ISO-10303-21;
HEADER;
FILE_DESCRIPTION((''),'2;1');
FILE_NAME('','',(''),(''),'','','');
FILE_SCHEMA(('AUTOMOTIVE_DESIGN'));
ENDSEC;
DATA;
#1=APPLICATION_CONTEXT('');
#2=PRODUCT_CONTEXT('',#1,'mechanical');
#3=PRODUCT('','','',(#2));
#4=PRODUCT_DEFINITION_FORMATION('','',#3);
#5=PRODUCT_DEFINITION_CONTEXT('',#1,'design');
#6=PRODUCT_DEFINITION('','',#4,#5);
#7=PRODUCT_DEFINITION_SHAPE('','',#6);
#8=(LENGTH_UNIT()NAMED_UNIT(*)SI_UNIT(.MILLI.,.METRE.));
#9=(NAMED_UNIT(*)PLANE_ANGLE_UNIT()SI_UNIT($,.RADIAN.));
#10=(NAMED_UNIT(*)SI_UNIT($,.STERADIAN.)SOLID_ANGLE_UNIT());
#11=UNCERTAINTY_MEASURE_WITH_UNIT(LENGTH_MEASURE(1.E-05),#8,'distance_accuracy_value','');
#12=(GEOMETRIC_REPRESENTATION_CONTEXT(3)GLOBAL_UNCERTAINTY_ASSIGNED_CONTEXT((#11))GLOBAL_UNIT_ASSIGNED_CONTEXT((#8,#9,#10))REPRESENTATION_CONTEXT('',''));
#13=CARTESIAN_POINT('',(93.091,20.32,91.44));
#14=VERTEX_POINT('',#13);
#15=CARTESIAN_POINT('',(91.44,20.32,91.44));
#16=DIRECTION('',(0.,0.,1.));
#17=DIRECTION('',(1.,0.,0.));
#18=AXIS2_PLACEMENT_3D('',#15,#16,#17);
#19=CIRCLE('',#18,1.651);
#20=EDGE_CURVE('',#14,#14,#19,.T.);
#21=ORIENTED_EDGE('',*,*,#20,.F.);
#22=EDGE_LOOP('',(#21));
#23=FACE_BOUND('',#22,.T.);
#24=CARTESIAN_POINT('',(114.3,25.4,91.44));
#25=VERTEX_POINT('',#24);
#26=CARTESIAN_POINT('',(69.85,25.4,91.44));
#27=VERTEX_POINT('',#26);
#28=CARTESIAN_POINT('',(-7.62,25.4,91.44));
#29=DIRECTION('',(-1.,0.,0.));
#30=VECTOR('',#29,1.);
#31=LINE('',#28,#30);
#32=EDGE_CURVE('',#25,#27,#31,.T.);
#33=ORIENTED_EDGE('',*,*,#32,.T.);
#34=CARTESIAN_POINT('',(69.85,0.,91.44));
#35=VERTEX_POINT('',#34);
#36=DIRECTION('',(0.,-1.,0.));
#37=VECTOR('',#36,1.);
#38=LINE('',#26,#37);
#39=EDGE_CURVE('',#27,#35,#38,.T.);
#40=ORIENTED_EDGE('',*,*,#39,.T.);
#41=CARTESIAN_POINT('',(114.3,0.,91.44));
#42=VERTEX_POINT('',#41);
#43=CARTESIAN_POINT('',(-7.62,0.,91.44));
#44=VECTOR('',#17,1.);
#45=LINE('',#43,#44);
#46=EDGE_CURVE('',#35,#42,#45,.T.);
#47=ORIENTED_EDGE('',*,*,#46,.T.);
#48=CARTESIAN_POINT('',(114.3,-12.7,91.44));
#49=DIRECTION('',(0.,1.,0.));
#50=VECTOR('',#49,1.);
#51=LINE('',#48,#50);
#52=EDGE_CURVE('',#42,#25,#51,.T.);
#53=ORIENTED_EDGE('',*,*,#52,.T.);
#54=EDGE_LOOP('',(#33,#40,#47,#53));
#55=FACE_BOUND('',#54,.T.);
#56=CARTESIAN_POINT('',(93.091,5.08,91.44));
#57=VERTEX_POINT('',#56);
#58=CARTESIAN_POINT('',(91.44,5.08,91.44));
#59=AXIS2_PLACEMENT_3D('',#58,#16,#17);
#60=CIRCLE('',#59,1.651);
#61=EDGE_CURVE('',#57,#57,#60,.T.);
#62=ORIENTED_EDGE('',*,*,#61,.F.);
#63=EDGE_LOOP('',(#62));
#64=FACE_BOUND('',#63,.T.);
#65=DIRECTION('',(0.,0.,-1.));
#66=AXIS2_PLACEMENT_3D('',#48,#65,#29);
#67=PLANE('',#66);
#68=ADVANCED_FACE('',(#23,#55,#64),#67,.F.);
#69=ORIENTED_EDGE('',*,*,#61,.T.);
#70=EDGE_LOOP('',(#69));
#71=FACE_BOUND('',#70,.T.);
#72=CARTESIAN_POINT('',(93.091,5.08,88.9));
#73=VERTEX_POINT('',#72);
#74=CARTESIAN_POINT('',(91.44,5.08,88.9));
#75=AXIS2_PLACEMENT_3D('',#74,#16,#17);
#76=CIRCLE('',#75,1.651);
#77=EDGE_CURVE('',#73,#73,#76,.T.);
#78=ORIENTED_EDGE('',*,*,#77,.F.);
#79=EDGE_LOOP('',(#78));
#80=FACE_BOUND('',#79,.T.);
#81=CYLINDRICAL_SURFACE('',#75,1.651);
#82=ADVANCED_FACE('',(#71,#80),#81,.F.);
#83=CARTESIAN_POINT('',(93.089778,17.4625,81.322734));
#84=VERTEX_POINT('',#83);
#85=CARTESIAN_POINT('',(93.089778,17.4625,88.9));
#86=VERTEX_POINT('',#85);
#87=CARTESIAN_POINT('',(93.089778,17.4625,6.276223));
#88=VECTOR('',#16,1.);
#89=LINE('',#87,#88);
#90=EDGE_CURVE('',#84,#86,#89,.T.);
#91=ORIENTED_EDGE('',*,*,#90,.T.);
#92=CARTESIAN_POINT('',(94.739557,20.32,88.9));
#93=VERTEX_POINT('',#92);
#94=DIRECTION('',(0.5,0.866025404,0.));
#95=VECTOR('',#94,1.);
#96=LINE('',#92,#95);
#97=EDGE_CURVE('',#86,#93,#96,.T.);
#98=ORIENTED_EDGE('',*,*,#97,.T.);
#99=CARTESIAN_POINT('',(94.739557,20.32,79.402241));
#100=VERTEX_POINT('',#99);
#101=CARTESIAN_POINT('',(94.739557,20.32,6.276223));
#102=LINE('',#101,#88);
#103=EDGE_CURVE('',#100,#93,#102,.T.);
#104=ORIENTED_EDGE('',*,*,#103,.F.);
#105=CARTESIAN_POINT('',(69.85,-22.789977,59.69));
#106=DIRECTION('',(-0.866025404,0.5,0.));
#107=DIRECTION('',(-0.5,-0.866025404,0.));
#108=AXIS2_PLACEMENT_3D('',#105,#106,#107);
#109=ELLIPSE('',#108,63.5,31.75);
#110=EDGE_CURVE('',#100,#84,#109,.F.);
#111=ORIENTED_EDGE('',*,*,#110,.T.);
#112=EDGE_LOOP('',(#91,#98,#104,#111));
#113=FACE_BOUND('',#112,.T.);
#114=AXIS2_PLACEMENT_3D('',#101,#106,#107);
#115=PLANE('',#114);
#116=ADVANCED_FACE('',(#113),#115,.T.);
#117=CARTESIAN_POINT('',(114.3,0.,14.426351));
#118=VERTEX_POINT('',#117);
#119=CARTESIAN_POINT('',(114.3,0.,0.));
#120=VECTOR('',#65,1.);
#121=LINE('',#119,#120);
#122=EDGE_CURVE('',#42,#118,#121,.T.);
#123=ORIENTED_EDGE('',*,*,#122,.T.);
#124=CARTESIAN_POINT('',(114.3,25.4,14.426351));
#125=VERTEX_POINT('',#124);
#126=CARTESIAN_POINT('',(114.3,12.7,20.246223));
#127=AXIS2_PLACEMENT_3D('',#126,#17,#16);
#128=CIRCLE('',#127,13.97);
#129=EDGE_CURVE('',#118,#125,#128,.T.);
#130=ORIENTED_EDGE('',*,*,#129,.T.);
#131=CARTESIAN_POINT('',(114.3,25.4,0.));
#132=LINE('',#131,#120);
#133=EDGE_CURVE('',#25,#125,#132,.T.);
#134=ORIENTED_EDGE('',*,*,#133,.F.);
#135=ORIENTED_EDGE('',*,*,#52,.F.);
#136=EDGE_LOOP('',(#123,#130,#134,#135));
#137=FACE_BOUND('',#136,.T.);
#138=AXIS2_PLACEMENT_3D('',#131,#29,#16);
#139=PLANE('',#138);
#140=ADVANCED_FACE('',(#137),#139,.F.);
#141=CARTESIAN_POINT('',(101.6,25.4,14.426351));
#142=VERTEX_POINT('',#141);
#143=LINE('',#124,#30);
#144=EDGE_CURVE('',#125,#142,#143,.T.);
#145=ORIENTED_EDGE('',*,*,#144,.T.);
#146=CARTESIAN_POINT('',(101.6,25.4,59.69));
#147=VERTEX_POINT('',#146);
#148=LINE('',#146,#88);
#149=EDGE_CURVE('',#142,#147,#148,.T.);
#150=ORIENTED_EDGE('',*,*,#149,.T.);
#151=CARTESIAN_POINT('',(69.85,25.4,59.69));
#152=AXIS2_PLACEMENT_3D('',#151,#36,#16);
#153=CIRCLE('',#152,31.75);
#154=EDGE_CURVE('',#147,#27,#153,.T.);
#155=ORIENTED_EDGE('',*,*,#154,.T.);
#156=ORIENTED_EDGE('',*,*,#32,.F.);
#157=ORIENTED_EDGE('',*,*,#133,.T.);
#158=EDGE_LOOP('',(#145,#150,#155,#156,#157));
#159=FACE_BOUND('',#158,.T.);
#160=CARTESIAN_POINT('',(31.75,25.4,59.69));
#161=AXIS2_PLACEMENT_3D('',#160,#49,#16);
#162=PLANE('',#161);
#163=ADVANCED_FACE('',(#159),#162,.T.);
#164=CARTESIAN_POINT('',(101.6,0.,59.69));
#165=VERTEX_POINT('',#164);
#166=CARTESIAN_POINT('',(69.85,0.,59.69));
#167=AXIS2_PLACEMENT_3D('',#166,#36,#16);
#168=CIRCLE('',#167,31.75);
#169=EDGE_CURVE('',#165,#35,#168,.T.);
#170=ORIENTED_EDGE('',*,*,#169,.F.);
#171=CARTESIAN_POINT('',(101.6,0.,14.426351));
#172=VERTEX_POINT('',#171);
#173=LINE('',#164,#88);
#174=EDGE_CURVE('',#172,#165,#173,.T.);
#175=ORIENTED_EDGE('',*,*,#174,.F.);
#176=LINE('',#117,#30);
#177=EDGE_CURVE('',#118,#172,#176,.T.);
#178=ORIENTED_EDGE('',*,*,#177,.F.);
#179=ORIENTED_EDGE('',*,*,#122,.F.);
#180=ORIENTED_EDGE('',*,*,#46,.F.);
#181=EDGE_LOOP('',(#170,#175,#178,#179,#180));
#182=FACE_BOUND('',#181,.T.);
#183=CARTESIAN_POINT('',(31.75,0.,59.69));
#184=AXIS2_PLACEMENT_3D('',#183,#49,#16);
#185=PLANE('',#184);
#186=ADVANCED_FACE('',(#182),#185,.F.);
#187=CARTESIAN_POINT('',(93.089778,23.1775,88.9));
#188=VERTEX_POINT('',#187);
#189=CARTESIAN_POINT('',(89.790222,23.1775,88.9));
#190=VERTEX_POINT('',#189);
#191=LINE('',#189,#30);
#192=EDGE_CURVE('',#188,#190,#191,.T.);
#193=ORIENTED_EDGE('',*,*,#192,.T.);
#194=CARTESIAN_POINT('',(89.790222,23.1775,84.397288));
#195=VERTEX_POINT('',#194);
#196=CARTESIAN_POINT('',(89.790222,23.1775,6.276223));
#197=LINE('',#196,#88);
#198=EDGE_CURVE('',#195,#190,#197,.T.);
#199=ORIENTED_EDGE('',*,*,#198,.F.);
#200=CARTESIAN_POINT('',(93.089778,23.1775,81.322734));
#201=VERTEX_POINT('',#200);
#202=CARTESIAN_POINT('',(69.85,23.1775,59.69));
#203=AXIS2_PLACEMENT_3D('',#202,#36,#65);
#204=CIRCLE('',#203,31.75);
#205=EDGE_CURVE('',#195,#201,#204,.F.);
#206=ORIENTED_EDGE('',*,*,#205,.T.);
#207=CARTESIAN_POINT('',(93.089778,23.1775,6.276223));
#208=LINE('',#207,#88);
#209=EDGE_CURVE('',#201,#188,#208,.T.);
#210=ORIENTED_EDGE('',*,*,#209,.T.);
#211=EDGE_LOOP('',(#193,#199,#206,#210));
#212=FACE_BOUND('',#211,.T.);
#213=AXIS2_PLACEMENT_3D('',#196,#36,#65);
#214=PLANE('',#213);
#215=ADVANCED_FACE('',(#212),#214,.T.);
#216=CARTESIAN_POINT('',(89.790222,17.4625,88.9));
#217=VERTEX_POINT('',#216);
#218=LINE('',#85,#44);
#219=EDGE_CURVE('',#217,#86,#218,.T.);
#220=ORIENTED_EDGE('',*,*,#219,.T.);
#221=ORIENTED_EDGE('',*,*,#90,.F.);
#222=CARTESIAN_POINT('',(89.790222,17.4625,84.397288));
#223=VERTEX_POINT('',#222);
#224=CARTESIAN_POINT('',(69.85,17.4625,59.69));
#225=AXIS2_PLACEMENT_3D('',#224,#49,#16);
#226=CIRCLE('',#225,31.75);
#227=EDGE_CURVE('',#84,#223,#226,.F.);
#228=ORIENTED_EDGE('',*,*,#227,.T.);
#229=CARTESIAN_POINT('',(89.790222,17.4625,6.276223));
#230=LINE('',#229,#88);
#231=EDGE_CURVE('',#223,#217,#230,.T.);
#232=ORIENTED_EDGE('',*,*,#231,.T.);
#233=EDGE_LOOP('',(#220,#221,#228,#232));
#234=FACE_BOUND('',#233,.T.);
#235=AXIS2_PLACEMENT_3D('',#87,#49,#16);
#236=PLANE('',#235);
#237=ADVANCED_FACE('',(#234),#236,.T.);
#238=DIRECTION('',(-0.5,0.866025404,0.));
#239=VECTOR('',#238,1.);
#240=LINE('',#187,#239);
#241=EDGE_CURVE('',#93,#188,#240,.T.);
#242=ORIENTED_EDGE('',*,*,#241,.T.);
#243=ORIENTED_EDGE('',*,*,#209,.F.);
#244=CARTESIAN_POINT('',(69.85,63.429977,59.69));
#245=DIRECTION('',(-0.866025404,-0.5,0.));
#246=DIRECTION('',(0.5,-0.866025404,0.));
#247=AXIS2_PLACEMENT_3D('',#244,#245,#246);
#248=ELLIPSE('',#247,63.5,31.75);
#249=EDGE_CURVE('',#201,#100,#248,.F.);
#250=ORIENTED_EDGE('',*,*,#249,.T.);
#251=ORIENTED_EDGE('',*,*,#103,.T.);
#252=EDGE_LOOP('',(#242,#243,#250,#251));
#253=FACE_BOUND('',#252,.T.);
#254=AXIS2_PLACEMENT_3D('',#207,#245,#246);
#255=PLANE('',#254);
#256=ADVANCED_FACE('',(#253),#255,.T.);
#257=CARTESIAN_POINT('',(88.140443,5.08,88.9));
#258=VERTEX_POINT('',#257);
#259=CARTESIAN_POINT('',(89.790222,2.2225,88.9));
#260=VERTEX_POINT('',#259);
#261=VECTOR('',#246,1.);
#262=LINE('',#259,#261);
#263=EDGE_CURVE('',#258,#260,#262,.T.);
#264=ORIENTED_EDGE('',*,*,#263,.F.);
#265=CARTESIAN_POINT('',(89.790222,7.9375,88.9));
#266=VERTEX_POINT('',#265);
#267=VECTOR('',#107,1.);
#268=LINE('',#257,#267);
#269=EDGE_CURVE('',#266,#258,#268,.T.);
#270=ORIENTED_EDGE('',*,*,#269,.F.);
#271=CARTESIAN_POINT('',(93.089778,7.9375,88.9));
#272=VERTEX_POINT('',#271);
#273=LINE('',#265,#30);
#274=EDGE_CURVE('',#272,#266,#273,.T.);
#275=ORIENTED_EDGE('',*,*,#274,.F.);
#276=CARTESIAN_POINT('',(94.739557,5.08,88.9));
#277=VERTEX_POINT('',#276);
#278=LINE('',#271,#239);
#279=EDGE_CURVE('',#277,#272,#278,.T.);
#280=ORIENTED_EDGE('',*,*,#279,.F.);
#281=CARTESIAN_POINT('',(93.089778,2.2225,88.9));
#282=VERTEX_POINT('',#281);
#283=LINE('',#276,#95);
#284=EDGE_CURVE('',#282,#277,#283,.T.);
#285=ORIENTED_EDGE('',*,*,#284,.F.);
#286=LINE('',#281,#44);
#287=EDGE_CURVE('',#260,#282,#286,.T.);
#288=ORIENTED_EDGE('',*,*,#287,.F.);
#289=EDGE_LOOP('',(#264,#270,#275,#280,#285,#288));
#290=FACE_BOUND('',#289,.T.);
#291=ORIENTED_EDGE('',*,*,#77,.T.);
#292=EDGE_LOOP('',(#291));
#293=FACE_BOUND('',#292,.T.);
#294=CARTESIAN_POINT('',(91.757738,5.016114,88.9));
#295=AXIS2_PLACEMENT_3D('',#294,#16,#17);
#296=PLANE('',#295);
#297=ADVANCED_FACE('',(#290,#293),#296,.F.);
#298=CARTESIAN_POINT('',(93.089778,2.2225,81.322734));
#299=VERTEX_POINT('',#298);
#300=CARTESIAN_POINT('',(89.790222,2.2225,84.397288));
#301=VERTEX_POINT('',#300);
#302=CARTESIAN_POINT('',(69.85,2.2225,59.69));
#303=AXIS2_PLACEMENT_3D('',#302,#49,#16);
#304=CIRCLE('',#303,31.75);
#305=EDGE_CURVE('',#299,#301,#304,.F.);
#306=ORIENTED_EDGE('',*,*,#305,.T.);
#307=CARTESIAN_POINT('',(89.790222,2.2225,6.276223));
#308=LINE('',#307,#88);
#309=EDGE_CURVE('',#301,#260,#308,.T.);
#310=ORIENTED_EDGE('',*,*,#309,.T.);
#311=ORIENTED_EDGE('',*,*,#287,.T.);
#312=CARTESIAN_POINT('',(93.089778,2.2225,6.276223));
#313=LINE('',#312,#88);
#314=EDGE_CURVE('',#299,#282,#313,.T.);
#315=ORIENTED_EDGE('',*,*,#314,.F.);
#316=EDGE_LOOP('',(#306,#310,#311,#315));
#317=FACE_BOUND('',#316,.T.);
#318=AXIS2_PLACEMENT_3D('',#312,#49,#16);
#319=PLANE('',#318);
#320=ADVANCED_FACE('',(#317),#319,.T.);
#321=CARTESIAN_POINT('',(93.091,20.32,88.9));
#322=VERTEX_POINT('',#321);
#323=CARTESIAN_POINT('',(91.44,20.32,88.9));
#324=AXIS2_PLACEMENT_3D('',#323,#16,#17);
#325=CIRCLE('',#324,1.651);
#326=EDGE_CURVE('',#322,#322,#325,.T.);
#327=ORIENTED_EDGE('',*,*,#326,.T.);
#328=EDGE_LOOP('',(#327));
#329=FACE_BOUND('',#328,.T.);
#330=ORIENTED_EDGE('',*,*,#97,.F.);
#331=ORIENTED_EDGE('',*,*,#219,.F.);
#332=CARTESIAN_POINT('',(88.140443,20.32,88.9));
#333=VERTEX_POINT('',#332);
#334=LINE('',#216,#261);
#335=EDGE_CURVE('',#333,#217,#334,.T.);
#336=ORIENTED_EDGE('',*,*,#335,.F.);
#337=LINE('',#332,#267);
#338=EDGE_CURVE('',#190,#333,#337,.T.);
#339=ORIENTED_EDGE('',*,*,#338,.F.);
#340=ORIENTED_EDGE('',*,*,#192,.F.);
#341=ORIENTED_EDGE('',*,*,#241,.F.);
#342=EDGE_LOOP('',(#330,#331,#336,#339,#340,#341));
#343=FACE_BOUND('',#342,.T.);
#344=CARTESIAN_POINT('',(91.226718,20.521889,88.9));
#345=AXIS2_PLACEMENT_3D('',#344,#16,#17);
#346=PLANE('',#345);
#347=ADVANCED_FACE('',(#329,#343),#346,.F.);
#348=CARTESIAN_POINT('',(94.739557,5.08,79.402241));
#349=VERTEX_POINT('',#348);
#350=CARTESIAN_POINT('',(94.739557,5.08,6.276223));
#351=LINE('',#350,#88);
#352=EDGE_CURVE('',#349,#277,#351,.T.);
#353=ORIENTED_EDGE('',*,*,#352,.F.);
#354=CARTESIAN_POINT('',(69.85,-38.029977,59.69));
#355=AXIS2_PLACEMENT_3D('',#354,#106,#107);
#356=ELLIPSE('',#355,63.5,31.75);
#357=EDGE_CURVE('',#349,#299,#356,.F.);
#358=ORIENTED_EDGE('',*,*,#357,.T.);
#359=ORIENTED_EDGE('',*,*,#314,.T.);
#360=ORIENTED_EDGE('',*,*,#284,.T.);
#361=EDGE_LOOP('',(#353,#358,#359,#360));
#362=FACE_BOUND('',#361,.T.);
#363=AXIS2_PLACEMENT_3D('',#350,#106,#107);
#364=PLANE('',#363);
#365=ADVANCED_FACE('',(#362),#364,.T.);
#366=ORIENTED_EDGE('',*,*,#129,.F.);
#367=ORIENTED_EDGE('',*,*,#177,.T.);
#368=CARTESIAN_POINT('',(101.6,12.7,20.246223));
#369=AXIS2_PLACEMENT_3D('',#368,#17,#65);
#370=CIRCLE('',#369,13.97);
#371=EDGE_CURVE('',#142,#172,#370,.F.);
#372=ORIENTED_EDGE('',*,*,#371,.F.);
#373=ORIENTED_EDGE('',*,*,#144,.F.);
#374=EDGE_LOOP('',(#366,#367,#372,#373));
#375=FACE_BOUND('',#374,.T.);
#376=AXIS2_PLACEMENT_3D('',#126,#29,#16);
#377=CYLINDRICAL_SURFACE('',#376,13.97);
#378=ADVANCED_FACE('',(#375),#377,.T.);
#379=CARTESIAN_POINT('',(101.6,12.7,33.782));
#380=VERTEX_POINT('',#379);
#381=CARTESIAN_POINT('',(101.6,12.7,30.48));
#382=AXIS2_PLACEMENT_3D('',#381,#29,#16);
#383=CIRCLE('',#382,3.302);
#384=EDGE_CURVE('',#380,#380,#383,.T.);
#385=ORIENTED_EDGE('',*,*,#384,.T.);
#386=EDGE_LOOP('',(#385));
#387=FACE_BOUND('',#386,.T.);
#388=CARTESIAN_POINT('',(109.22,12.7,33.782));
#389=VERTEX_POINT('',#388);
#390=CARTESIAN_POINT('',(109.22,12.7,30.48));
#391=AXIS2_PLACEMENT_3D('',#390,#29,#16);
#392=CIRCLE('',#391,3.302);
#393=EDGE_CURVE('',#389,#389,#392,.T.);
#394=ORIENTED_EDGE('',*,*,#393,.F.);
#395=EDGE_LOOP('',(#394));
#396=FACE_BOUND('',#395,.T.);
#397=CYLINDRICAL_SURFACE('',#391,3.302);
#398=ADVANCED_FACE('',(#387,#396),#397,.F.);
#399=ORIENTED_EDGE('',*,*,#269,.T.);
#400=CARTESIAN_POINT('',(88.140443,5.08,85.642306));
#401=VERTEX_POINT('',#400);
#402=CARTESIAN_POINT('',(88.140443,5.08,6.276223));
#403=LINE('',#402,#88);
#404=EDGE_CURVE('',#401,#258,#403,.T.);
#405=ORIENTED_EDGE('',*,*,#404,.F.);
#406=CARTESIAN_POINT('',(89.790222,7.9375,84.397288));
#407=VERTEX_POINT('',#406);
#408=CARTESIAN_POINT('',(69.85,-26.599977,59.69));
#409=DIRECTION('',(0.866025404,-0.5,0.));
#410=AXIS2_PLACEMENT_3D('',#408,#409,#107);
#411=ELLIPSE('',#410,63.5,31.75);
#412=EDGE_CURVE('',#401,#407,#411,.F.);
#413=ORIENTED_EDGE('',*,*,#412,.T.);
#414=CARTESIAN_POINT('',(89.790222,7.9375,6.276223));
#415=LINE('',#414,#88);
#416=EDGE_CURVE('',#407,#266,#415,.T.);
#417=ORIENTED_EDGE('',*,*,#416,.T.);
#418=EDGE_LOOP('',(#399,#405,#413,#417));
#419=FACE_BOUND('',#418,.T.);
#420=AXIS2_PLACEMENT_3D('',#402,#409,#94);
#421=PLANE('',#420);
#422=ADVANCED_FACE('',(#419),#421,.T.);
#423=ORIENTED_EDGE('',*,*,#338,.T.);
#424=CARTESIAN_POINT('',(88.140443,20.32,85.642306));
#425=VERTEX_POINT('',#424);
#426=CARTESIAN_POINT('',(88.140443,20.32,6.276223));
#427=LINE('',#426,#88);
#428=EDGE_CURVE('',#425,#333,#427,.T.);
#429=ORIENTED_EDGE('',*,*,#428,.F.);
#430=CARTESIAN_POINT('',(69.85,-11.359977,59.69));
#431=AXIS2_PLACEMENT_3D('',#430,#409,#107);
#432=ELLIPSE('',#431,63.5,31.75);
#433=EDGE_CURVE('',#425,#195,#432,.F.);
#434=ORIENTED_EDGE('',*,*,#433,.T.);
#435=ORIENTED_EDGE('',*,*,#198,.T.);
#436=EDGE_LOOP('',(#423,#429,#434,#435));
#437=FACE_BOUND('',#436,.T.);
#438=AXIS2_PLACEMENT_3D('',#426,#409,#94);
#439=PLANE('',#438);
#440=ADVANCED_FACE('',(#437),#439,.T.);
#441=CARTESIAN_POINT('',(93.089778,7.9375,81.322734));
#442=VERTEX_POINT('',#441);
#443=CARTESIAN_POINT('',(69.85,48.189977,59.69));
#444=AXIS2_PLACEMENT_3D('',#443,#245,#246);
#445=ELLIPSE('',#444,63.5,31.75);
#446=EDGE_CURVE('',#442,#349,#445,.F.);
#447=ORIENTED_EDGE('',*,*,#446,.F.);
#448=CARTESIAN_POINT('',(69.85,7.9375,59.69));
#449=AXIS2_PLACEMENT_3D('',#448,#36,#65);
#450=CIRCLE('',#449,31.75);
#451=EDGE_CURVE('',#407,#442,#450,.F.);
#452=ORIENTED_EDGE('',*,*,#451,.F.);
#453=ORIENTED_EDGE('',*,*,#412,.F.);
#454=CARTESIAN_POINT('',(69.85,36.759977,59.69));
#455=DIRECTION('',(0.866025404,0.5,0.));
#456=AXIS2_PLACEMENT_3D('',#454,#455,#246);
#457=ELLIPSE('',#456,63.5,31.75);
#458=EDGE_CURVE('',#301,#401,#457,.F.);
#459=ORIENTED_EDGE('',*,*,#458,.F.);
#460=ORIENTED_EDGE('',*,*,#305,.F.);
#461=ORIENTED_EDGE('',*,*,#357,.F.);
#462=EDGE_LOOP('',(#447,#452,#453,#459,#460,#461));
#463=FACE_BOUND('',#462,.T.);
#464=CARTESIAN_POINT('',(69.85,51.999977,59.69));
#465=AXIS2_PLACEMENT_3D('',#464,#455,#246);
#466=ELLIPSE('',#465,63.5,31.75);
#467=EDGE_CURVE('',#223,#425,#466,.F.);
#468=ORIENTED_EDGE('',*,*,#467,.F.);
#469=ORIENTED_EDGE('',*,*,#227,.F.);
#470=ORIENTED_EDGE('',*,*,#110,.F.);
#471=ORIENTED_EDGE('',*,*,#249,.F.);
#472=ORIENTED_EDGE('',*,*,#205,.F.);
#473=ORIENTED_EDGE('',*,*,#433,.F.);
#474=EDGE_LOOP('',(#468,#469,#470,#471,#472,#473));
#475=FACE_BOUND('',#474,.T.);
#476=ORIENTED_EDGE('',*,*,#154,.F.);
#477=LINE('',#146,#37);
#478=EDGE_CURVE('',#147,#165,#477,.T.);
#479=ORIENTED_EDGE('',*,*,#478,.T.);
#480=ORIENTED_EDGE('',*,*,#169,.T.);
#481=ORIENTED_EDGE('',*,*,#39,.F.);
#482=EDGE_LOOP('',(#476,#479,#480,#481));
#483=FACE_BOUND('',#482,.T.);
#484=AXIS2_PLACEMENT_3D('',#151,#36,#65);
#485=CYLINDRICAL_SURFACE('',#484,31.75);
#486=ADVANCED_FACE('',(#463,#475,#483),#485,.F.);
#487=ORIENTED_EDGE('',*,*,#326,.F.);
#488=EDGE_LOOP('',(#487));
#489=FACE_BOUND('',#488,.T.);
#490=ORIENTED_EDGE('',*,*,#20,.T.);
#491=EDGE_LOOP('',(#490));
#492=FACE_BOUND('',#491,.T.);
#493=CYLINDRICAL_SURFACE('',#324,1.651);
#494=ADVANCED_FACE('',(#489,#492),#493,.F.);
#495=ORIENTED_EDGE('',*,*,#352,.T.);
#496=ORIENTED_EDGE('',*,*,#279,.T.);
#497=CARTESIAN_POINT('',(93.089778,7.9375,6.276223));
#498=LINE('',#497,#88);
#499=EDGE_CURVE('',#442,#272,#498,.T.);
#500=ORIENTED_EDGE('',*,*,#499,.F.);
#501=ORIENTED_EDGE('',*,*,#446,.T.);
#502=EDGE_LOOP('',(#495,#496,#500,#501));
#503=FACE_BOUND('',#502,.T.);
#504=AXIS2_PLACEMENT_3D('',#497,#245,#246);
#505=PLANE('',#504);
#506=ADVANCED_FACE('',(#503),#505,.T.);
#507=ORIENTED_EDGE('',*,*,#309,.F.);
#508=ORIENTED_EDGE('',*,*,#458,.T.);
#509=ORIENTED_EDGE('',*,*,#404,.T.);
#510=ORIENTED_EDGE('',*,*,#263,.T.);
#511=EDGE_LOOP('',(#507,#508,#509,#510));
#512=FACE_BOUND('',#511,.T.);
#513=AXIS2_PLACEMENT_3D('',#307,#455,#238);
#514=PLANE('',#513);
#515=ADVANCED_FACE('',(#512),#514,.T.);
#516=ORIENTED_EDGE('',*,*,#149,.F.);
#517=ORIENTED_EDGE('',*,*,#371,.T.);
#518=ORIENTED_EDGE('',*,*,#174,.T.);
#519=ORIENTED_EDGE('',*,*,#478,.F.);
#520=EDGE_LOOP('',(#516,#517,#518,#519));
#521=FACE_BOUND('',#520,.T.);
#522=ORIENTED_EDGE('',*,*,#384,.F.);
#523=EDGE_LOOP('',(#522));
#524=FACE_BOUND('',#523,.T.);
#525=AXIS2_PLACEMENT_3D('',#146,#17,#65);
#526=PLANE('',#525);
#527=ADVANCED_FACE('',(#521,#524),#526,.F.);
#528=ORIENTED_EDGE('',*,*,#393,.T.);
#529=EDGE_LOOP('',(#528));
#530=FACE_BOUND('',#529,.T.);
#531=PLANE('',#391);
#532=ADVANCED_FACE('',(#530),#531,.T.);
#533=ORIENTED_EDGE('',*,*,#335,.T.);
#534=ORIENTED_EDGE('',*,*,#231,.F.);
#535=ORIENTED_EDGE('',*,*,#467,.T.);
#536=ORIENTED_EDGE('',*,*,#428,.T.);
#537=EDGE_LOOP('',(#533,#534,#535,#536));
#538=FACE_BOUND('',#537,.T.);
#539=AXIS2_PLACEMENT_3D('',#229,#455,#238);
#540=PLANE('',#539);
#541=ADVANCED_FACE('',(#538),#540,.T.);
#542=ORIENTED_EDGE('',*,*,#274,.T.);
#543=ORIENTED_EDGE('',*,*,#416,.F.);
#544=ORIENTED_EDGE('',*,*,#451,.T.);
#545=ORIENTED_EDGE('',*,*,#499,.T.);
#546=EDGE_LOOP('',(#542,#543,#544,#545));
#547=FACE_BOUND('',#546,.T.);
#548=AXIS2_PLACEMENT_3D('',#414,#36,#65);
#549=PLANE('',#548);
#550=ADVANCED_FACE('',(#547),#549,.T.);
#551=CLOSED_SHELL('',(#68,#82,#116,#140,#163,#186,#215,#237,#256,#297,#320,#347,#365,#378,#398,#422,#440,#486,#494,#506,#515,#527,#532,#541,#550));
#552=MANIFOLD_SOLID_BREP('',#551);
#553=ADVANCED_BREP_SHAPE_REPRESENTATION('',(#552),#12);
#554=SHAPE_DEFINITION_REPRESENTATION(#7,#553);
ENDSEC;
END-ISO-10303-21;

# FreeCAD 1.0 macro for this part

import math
import FreeCAD as App
import Part
import Sketcher
Q = App.Units.Quantity

doc = App.newDocument("Part")
body = doc.addObject("PartDesign::Body", "Body")

sketch1 = body.newObject("Sketcher::SketchObject", "Sketch")
sketch1.AttachmentSupport = (doc.getObject("XZ_Plane"), [""])
sketch1.MapMode = "FlatFace"
sketch1.addGeometry(Part.LineSegment(App.Vector(0, 59.69, 0), App.Vector(0, 0, 0)), False)
sketch1.addGeometry(Part.LineSegment(App.Vector(0, 0, 0), App.Vector(-7.62, 0, 0)), False)
sketch1.addGeometry(Part.LineSegment(App.Vector(-7.62, 0, 0), App.Vector(-7.62, 99.06, 0)), False)
sketch1.addGeometry(Part.LineSegment(App.Vector(-7.62, 99.06, 0), App.Vector(114.3, 99.06, 0)), False)
sketch1.addGeometry(Part.LineSegment(App.Vector(114.3, 99.06, 0), App.Vector(114.3, 0, 0)), False)
sketch1.addGeometry(Part.LineSegment(App.Vector(114.3, 0, 0), App.Vector(101.6, 0, 0)), False)
sketch1.addGeometry(Part.LineSegment(App.Vector(101.6, 0, 0), App.Vector(101.6, 59.69, 0)), False)
sketch1.addGeometry(Part.ArcOfCircle(Part.Circle(App.Vector(69.85, 59.69, 0), App.Vector(0, 0, 1), 31.75), math.radians(0), math.radians(90)), False)
sketch1.addGeometry(Part.LineSegment(App.Vector(69.85, 91.44, 0), App.Vector(31.75, 91.44, 0)), False)
sketch1.addGeometry(Part.ArcOfCircle(Part.Circle(App.Vector(31.75, 59.69, 0), App.Vector(0, 0, 1), 31.75), math.radians(90), math.radians(180)), False)
sketch1.addConstraint(Sketcher.Constraint("Coincident", 0, 2, 1, 1))
sketch1.addConstraint(Sketcher.Constraint("Coincident", 1, 2, 2, 1))
sketch1.addConstraint(Sketcher.Constraint("Coincident", 2, 2, 3, 1))
sketch1.addConstraint(Sketcher.Constraint("Coincident", 3, 2, 4, 1))
sketch1.addConstraint(Sketcher.Constraint("Coincident", 4, 2, 5, 1))
sketch1.addConstraint(Sketcher.Constraint("Coincident", 5, 2, 6, 1))
sketch1.addConstraint(Sketcher.Constraint("Tangent", 6, 2, 7, 1))
sketch1.addConstraint(Sketcher.Constraint("Tangent", 7, 2, 8, 1))
sketch1.addConstraint(Sketcher.Constraint("Tangent", 8, 2, 9, 1))
sketch1.addConstraint(Sketcher.Constraint("Tangent", 9, 2, 0, 1))
sketch1.addConstraint(Sketcher.Constraint("Vertical", 0))
sketch1.addConstraint(Sketcher.Constraint("Horizontal", 1))
sketch1.addConstraint(Sketcher.Constraint("Vertical", 2))
sketch1.addConstraint(Sketcher.Constraint("Horizontal", 3))
sketch1.addConstraint(Sketcher.Constraint("Vertical", 4))
sketch1.addConstraint(Sketcher.Constraint("Horizontal", 5))
sketch1.addConstraint(Sketcher.Constraint("Vertical", 6))
sketch1.addConstraint(Sketcher.Constraint("Horizontal", 8))
sketch1.addConstraint(Sketcher.Constraint("Coincident", 0, 2, -1, 1))
sketch1.addConstraint(Sketcher.Constraint("Equal", 7, 9))
sketch1.addConstraint(Sketcher.Constraint("PointOnObject", 4, 2, -1))
sketch1.addConstraint(Sketcher.Constraint("Radius", 7, Q("1.25 in")))
sketch1.addConstraint(Sketcher.Constraint("DistanceX", 1, 2, 1, 1, Q("0.3 in")))
sketch1.addConstraint(Sketcher.Constraint("DistanceX", 3, 1, 3, 2, Q("4.8 in")))
sketch1.addConstraint(Sketcher.Constraint("DistanceX", 5, 2, 5, 1, Q("0.5 in")))
sketch1.addConstraint(Sketcher.Constraint("DistanceY", 2, 1, 2, 2, Q("3.9 in")))
sketch1.addConstraint(Sketcher.Constraint("DistanceY", 0, 2, 0, 1, Q("2.35 in")))
pad1 = body.newObject("PartDesign::Pad", "Pad")
pad1.Profile = sketch1
pad1.Length = Q("1 in")
pad1.Reversed = True

sketch2 = body.newObject("Sketcher::SketchObject", "Sketch001")
sketch2.AttachmentSupport = (doc.getObject("YZ_Plane"), [""])
sketch2.MapMode = "FlatFace"
sketch2.AttachmentOffset = App.Placement(App.Vector(0, 0, 4 * 25.4), App.Rotation())
sketch2.addGeometry(Part.Circle(App.Vector(12.7, 30.48, 0), App.Vector(0, 0, 1), 3.302), False)
sketch2.addConstraint(Sketcher.Constraint("Diameter", 0, Q("0.26 in")))
sketch2.addConstraint(Sketcher.Constraint("DistanceX", -1, 1, 0, 3, Q("0.5 in")))
sketch2.addConstraint(Sketcher.Constraint("DistanceY", -1, 1, 0, 3, Q("1.2 in")))
pocket1 = body.newObject("PartDesign::Pocket", "Pocket")
pocket1.Profile = sketch2
pocket1.Length = Q("0.3 in")
pocket1.Reversed = True

sketch3 = body.newObject("Sketcher::SketchObject", "Sketch002")
sketch3.AttachmentSupport = (doc.getObject("YZ_Plane"), [""])
sketch3.MapMode = "FlatFace"
sketch3.addGeometry(Part.Circle(App.Vector(12.7, 15.24, 0), App.Vector(0, 0, 1), 1.5875), False)
sketch3.addGeometry(Part.Circle(App.Vector(12.7, 45.72, 0), App.Vector(0, 0, 1), 1.5875), False)
sketch3.addGeometry(Part.Circle(App.Vector(12.7, 30.48, 0), App.Vector(0, 0, 1), 3.302), False)
sketch3.addConstraint(Sketcher.Constraint("Equal", 0, 1))
sketch3.addConstraint(Sketcher.Constraint("Vertical", 0, 3, 1, 3))
sketch3.addConstraint(Sketcher.Constraint("Vertical", 1, 3, 2, 3))
sketch3.addConstraint(Sketcher.Constraint("Diameter", 2, Q("0.26 in")))
sketch3.addConstraint(Sketcher.Constraint("Diameter", 0, Q("0.125 in")))
sketch3.addConstraint(Sketcher.Constraint("DistanceX", -1, 1, 0, 3, Q("0.5 in")))
sketch3.addConstraint(Sketcher.Constraint("DistanceY", -1, 1, 0, 3, Q("0.6 in")))
sketch3.addConstraint(Sketcher.Constraint("DistanceY", -1, 1, 1, 3, Q("1.8 in")))
sketch3.addConstraint(Sketcher.Constraint("DistanceY", -1, 1, 2, 3, Q("1.2 in")))
pocket2 = body.newObject("PartDesign::Pocket", "Pocket001")
pocket2.Profile = sketch3
pocket2.Length = Q("0.3 in")

sketch4 = body.newObject("Sketcher::SketchObject", "Sketch003")
sketch4.AttachmentSupport = (doc.getObject("XY_Plane"), [""])
sketch4.MapMode = "FlatFace"
sketch4.AttachmentOffset = App.Placement(App.Vector(0, 0, 3.9 * 25.4), App.Rotation())
sketch4.addGeometry(Part.LineSegment(App.Vector(-7.62, 38.1, 0), App.Vector(-7.62, 25.4, 0)), False)
sketch4.addGeometry(Part.LineSegment(App.Vector(-7.62, 25.4, 0), App.Vector(114.3, 25.4, 0)), False)
sketch4.addGeometry(Part.LineSegment(App.Vector(114.3, 25.4, 0), App.Vector(114.3, 38.1, 0)), False)
sketch4.addGeometry(Part.LineSegment(App.Vector(114.3, 38.1, 0), App.Vector(-7.62, 38.1, 0)), False)
sketch4.addGeometry(Part.LineSegment(App.Vector(-7.62, 0, 0), App.Vector(-7.62, -12.7, 0)), False)
sketch4.addGeometry(Part.LineSegment(App.Vector(-7.62, -12.7, 0), App.Vector(114.3, -12.7, 0)), False)
sketch4.addGeometry(Part.LineSegment(App.Vector(114.3, -12.7, 0), App.Vector(114.3, 0, 0)), False)
sketch4.addGeometry(Part.LineSegment(App.Vector(114.3, 0, 0), App.Vector(-7.62, 0, 0)), False)
sketch4.addConstraint(Sketcher.Constraint("Coincident", 0, 2, 1, 1))
sketch4.addConstraint(Sketcher.Constraint("Coincident", 1, 2, 2, 1))
sketch4.addConstraint(Sketcher.Constraint("Coincident", 2, 2, 3, 1))
sketch4.addConstraint(Sketcher.Constraint("Coincident", 3, 2, 0, 1))
sketch4.addConstraint(Sketcher.Constraint("Coincident", 4, 2, 5, 1))
sketch4.addConstraint(Sketcher.Constraint("Coincident", 5, 2, 6, 1))
sketch4.addConstraint(Sketcher.Constraint("Coincident", 6, 2, 7, 1))
sketch4.addConstraint(Sketcher.Constraint("Coincident", 7, 2, 4, 1))
sketch4.addConstraint(Sketcher.Constraint("Vertical", 0))
sketch4.addConstraint(Sketcher.Constraint("Horizontal", 1))
sketch4.addConstraint(Sketcher.Constraint("Vertical", 2))
sketch4.addConstraint(Sketcher.Constraint("Horizontal", 3))
sketch4.addConstraint(Sketcher.Constraint("Vertical", 4))
sketch4.addConstraint(Sketcher.Constraint("Horizontal", 5))
sketch4.addConstraint(Sketcher.Constraint("Vertical", 6))
sketch4.addConstraint(Sketcher.Constraint("Horizontal", 7))
sketch4.addConstraint(Sketcher.Constraint("PointOnObject", 6, 2, -1))
sketch4.addConstraint(Sketcher.Constraint("Vertical", 3, 2, 4, 2))
sketch4.addConstraint(Sketcher.Constraint("Vertical", 2, 2, 5, 2))
sketch4.addConstraint(Sketcher.Constraint("Equal", 2, 4))
sketch4.addConstraint(Sketcher.Constraint("DistanceX", 1, 1, 1, 2, Q("4.8 in")))
sketch4.addConstraint(Sketcher.Constraint("DistanceY", 0, 2, 0, 1, Q("0.5 in")))
sketch4.addConstraint(Sketcher.Constraint("DistanceY", -1, 1, 0, 2, Q("1 in")))
sketch4.addConstraint(Sketcher.Constraint("DistanceX", 0, 2, -1, 1, Q("0.3 in")))
pad2 = body.newObject("PartDesign::Pad", "Pad001")
pad2.Profile = sketch4
pad2.Length = Q("0.3 in")
pad2.Reversed = True

sketch5 = body.newObject("Sketcher::SketchObject", "Sketch004")
sketch5.AttachmentSupport = (doc.getObject("XY_Plane"), [""])
sketch5.MapMode = "FlatFace"
sketch5.AttachmentOffset = App.Placement(App.Vector(0, 0, 3.9 * 25.4), App.Rotation())
sketch5.addGeometry(Part.LineSegment(App.Vector(12.284426, 29.21, 0), App.Vector(9.901413, 33.3375, 0)), False)
sketch5.addGeometry(Part.LineSegment(App.Vector(9.901413, 33.3375, 0), App.Vector(5.135387, 33.3375, 0)), False)
sketch5.addGeometry(Part.LineSegment(App.Vector(5.135387, 33.3375, 0), App.Vector(2.752374, 29.21, 0)), False)
sketch5.addGeometry(Part.LineSegment(App.Vector(2.752374, 29.21, 0), App.Vector(5.135387, 25.0825, 0)), False)
sketch5.addGeometry(Part.LineSegment(App.Vector(5.135387, 25.0825, 0), App.Vector(9.901413, 25.0825, 0)), False)
sketch5.addGeometry(Part.LineSegment(App.Vector(9.901413, 25.0825, 0), App.Vector(12.284426, 29.21, 0)), False)
sketch5.addGeometry(Part.LineSegment(App.Vector(103.724426, -3.81, 0), App.Vector(101.341413, 0.3175, 0)), False)
sketch5.addGeometry(Part.LineSegment(App.Vector(101.341413, 0.3175, 0), App.Vector(96.575387, 0.3175, 0)), False)
sketch5.addGeometry(Part.LineSegment(App.Vector(96.575387, 0.3175, 0), App.Vector(94.192374, -3.81, 0)), False)
sketch5.addGeometry(Part.LineSegment(App.Vector(94.192374, -3.81, 0), App.Vector(96.575387, -7.9375, 0)), False)
sketch5.addGeometry(Part.LineSegment(App.Vector(96.575387, -7.9375, 0), App.Vector(101.341413, -7.9375, 0)), False)
sketch5.addGeometry(Part.LineSegment(App.Vector(101.341413, -7.9375, 0), App.Vector(103.724426, -3.81, 0)), False)
sketch5.addConstraint(Sketcher.Constraint("Coincident", 0, 2, 1, 1))
sketch5.addConstraint(Sketcher.Constraint("Coincident", 1, 2, 2, 1))
sketch5.addConstraint(Sketcher.Constraint("Coincident", 2, 2, 3, 1))
sketch5.addConstraint(Sketcher.Constraint("Coincident", 3, 2, 4, 1))
sketch5.addConstraint(Sketcher.Constraint("Coincident", 4, 2, 5, 1))
sketch5.addConstraint(Sketcher.Constraint("Coincident", 5, 2, 0, 1))
sketch5.addConstraint(Sketcher.Constraint("Coincident", 6, 2, 7, 1))
sketch5.addConstraint(Sketcher.Constraint("Coincident", 7, 2, 8, 1))
sketch5.addConstraint(Sketcher.Constraint("Coincident", 8, 2, 9, 1))
sketch5.addConstraint(Sketcher.Constraint("Coincident", 9, 2, 10, 1))
sketch5.addConstraint(Sketcher.Constraint("Coincident", 10, 2, 11, 1))
sketch5.addConstraint(Sketcher.Constraint("Coincident", 11, 2, 6, 1))
sketch5.addConstraint(Sketcher.Constraint("Horizontal", 1))
sketch5.addConstraint(Sketcher.Constraint("Horizontal", 4))
sketch5.addConstraint(Sketcher.Constraint("Horizontal", 7))
sketch5.addConstraint(Sketcher.Constraint("Horizontal", 10))
sketch5.addConstraint(Sketcher.Constraint("Parallel", 0, 3))
sketch5.addConstraint(Sketcher.Constraint("Parallel", 2, 5))
sketch5.addConstraint(Sketcher.Constraint("Parallel", 3, 6))
sketch5.addConstraint(Sketcher.Constraint("Parallel", 5, 8))
sketch5.addConstraint(Sketcher.Constraint("Parallel", 6, 9))
sketch5.addConstraint(Sketcher.Constraint("Parallel", 8, 11))
sketch5.addConstraint(Sketcher.Constraint("Horizontal", 2, 2, 5, 2))
sketch5.addConstraint(Sketcher.Constraint("Horizontal", 8, 2, 11, 2))
sketch5.addConstraint(Sketcher.Constraint("Vertical", 1, 2, 3, 2))
sketch5.addConstraint(Sketcher.Constraint("Vertical", 0, 2, 4, 2))
sketch5.addConstraint(Sketcher.Constraint("Vertical", 7, 2, 9, 2))
sketch5.addConstraint(Sketcher.Constraint("Equal", 4, 7))
sketch5.addConstraint(Sketcher.Constraint("Equal", 5, 6))
sketch5.addConstraint(Sketcher.Constraint("Angle", 0, Q("120 deg")))
sketch5.addConstraint(Sketcher.Constraint("DistanceX", 4, 2, 6, 2, Q("3.6 in")))
sketch5.addConstraint(Sketcher.Constraint("DistanceY", 6, 2, 0, 2, Q("1.3 in")))
sketch5.addConstraint(Sketcher.Constraint("DistanceY", -1, 1, 2, 2, Q("1.15 in")))
sketch5.addConstraint(Sketcher.Constraint("DistanceY", -1, 1, 0, 2, Q("1.3125 in")))
sketch5.addConstraint(Sketcher.Constraint("DistanceX", 1, 2, 1, 1, Q("4.766026 mm")))
sketch5.addConstraint(Sketcher.Constraint("DistanceX", -1, 1, 0, 2, Q("9.901413 mm")))
pocket3 = body.newObject("PartDesign::Pocket", "Pocket002")
pocket3.Profile = sketch5
pocket3.Length = Q("0.15 in")

sketch6 = body.newObject("Sketcher::SketchObject", "Sketch005")
sketch6.AttachmentSupport = (doc.getObject("YZ_Plane"), [""])
sketch6.MapMode = "FlatFace"
sketch6.AttachmentOffset = App.Placement(App.Vector(0, 0, -0.3 * 25.4), App.Rotation())
sketch6.addGeometry(Part.Circle(App.Vector(12.7, 15.24, 0), App.Vector(0, 0, 1), 2.921), False)
sketch6.addGeometry(Part.Circle(App.Vector(12.7, 45.72, 0), App.Vector(0, 0, 1), 2.921), False)
sketch6.addConstraint(Sketcher.Constraint("Equal", 0, 1))
sketch6.addConstraint(Sketcher.Constraint("Vertical", 0, 3, 1, 3))
sketch6.addConstraint(Sketcher.Constraint("Diameter", 0, Q("0.23 in")))
sketch6.addConstraint(Sketcher.Constraint("DistanceX", -1, 1, 0, 3, Q("0.5 in")))
sketch6.addConstraint(Sketcher.Constraint("DistanceY", -1, 1, 0, 3, Q("0.6 in")))
sketch6.addConstraint(Sketcher.Constraint("DistanceY", -1, 1, 1, 3, Q("1.8 in")))
pocket4 = body.newObject("PartDesign::Pocket", "Pocket003")
pocket4.Profile = sketch6
pocket4.Length = Q("0.12 in")
pocket4.Reversed = True

sketch7 = body.newObject("Sketcher::SketchObject", "Sketch006")
sketch7.AttachmentSupport = (doc.getObject("XY_Plane"), [""])
sketch7.MapMode = "FlatFace"
sketch7.AttachmentOffset = App.Placement(App.Vector(0, 0, 3.75 * 25.4), App.Rotation())
sketch7.addGeometry(Part.Circle(App.Vector(7.5184, 29.21, 0), App.Vector(0, 0, 1), 1.5875), False)
sketch7.addGeometry(Part.Circle(App.Vector(98.9584, -3.81, 0), App.Vector(0, 0, 1), 1.5875), False)
sketch7.addConstraint(Sketcher.Constraint("Equal", 0, 1))
sketch7.addConstraint(Sketcher.Constraint("Diameter", 0, Q("0.125 in")))
sketch7.addConstraint(Sketcher.Constraint("DistanceX", 0, 3, 1, 3, Q("3.6 in")))
sketch7.addConstraint(Sketcher.Constraint("DistanceY", 1, 3, 0, 3, Q("1.3 in")))
sketch7.addConstraint(Sketcher.Constraint("DistanceY", -1, 1, 0, 3, Q("1.15 in")))
sketch7.addConstraint(Sketcher.Constraint("DistanceX", -1, 1, 0, 3, Q("0.296 in")))
pocket5 = body.newObject("PartDesign::Pocket", "Pocket004")
pocket5.Profile = sketch7
pocket5.Type = "ThroughAll"

sketch8 = body.newObject("Sketcher::SketchObject", "Sketch007")
sketch8.AttachmentSupport = (doc.getObject("XY_Plane"), [""])
sketch8.MapMode = "FlatFace"
sketch8.AttachmentOffset = App.Placement(App.Vector(0, 0, 3.9 * 25.4), App.Rotation())
sketch8.addGeometry(Part.LineSegment(App.Vector(58.3946, 22.86, 0), App.Vector(58.3946, 2.54, 0)), False)
sketch8.addGeometry(Part.LineSegment(App.Vector(58.3946, 2.54, 0), App.Vector(67.2846, 2.54, 0)), False)
sketch8.addGeometry(Part.LineSegment(App.Vector(67.2846, 2.54, 0), App.Vector(67.2846, 22.86, 0)), False)
sketch8.addGeometry(Part.LineSegment(App.Vector(67.2846, 22.86, 0), App.Vector(58.3946, 22.86, 0)), False)
sketch8.addConstraint(Sketcher.Constraint("Coincident", 0, 2, 1, 1))
sketch8.addConstraint(Sketcher.Constraint("Coincident", 1, 2, 2, 1))
sketch8.addConstraint(Sketcher.Constraint("Coincident", 2, 2, 3, 1))
sketch8.addConstraint(Sketcher.Constraint("Coincident", 3, 2, 0, 1))
sketch8.addConstraint(Sketcher.Constraint("Vertical", 0))
sketch8.addConstraint(Sketcher.Constraint("Horizontal", 1))
sketch8.addConstraint(Sketcher.Constraint("Vertical", 2))
sketch8.addConstraint(Sketcher.Constraint("Horizontal", 3))
sketch8.addConstraint(Sketcher.Constraint("DistanceY", 0, 2, 0, 1, Q("0.8 in")))
sketch8.addConstraint(Sketcher.Constraint("DistanceX", 1, 1, 1, 2, Q("0.35 in")))
sketch8.addConstraint(Sketcher.Constraint("DistanceY", -1, 1, 0, 2, Q("0.1 in")))
sketch8.addConstraint(Sketcher.Constraint("DistanceX", -1, 1, 0, 2, Q("2.299 in")))
pocket6 = body.newObject("PartDesign::Pocket", "Pocket005")
pocket6.Profile = sketch8
pocket6.Type = "UpToFirst"

sketch9 = body.newObject("Sketcher::SketchObject", "Sketch008")
sketch9.AttachmentSupport = (doc.getObject("YZ_Plane"), [""])
sketch9.MapMode = "FlatFace"
sketch9.AttachmentOffset = App.Placement(App.Vector(0, 0, -0.3 * 25.4), App.Rotation())
sketch9.addGeometry(Part.LineSegment(App.Vector(25.4, 14.426351, 0), App.Vector(25.4, 0, 0)), False)
sketch9.addGeometry(Part.LineSegment(App.Vector(25.4, 0, 0), App.Vector(0, 0, 0)), False)
sketch9.addGeometry(Part.LineSegment(App.Vector(0, 0, 0), App.Vector(0, 14.426351, 0)), False)
sketch9.addGeometry(Part.ArcOfCircle(Part.Circle(App.Vector(12.7, 20.246223, 0), App.Vector(0, 0, 1), 13.97), math.radians(-155.380023), math.radians(-24.619977)), False)
sketch9.addConstraint(Sketcher.Constraint("Coincident", 0, 2, 1, 1))
sketch9.addConstraint(Sketcher.Constraint("Coincident", 1, 2, 2, 1))
sketch9.addConstraint(Sketcher.Constraint("Coincident", 2, 2, 3, 1))
sketch9.addConstraint(Sketcher.Constraint("Coincident", 3, 2, 0, 1))
sketch9.addConstraint(Sketcher.Constraint("Vertical", 0))
sketch9.addConstraint(Sketcher.Constraint("Horizontal", 1))
sketch9.addConstraint(Sketcher.Constraint("Vertical", 2))
sketch9.addConstraint(Sketcher.Constraint("Coincident", 1, 2, -1, 1))
sketch9.addConstraint(Sketcher.Constraint("Horizontal", 2, 2, 3, 2))
sketch9.addConstraint(Sketcher.Constraint("DistanceX", 1, 2, 1, 1, Q("1 in")))
sketch9.addConstraint(Sketcher.Constraint("Radius", 3, Q("0.55 in")))
sketch9.addConstraint(Sketcher.Constraint("DistanceY", 0, 2, 0, 1, Q("14.426351 mm")))
pocket7 = body.newObject("PartDesign::Pocket", "Pocket006")
pocket7.Profile = sketch9
pocket7.Type = "ThroughAll"
pocket7.Midplane = True

sketch10 = body.newObject("Sketcher::SketchObject", "Sketch009")
sketch10.AttachmentSupport = (doc.getObject("XY_Plane"), [""])
sketch10.MapMode = "FlatFace"
sketch10.AttachmentOffset = App.Placement(App.Vector(0, 0, 3.6 * 25.4), App.Rotation())
sketch10.addGeometry(Part.LineSegment(App.Vector(88.140443, 20.32, 0), App.Vector(89.790222, 23.1775, 0)), False)
sketch10.addGeometry(Part.LineSegment(App.Vector(89.790222, 23.1775, 0), App.Vector(93.089778, 23.1775, 0)), False)
sketch10.addGeometry(Part.LineSegment(App.Vector(93.089778, 23.1775, 0), App.Vector(94.739557, 20.32, 0)), False)
sketch10.addGeometry(Part.LineSegment(App.Vector(94.739557, 20.32, 0), App.Vector(93.089778, 17.4625, 0)), False)
sketch10.addGeometry(Part.LineSegment(App.Vector(93.089778, 17.4625, 0), App.Vector(89.790222, 17.4625, 0)), False)
sketch10.addGeometry(Part.LineSegment(App.Vector(89.790222, 17.4625, 0), App.Vector(88.140443, 20.32, 0)), False)
sketch10.addGeometry(Part.LineSegment(App.Vector(88.140443, 5.08, 0), App.Vector(89.790222, 7.9375, 0)), False)
sketch10.addGeometry(Part.LineSegment(App.Vector(89.790222, 7.9375, 0), App.Vector(93.089778, 7.9375, 0)), False)
sketch10.addGeometry(Part.LineSegment(App.Vector(93.089778, 7.9375, 0), App.Vector(94.739557, 5.08, 0)), False)
sketch10.addGeometry(Part.LineSegment(App.Vector(94.739557, 5.08, 0), App.Vector(93.089778, 2.2225, 0)), False)
sketch10.addGeometry(Part.LineSegment(App.Vector(93.089778, 2.2225, 0), App.Vector(89.790222, 2.2225, 0)), False)
sketch10.addGeometry(Part.LineSegment(App.Vector(89.790222, 2.2225, 0), App.Vector(88.140443, 5.08, 0)), False)
sketch10.addConstraint(Sketcher.Constraint("Coincident", 0, 2, 1, 1))
sketch10.addConstraint(Sketcher.Constraint("Coincident", 1, 2, 2, 1))
sketch10.addConstraint(Sketcher.Constraint("Coincident", 2, 2, 3, 1))
sketch10.addConstraint(Sketcher.Constraint("Coincident", 3, 2, 4, 1))
sketch10.addConstraint(Sketcher.Constraint("Coincident", 4, 2, 5, 1))
sketch10.addConstraint(Sketcher.Constraint("Coincident", 5, 2, 0, 1))
sketch10.addConstraint(Sketcher.Constraint("Coincident", 6, 2, 7, 1))
sketch10.addConstraint(Sketcher.Constraint("Coincident", 7, 2, 8, 1))
sketch10.addConstraint(Sketcher.Constraint("Coincident", 8, 2, 9, 1))
sketch10.addConstraint(Sketcher.Constraint("Coincident", 9, 2, 10, 1))
sketch10.addConstraint(Sketcher.Constraint("Coincident", 10, 2, 11, 1))
sketch10.addConstraint(Sketcher.Constraint("Coincident", 11, 2, 6, 1))
sketch10.addConstraint(Sketcher.Constraint("Horizontal", 1))
sketch10.addConstraint(Sketcher.Constraint("Horizontal", 4))
sketch10.addConstraint(Sketcher.Constraint("Horizontal", 7))
sketch10.addConstraint(Sketcher.Constraint("Horizontal", 10))
sketch10.addConstraint(Sketcher.Constraint("Parallel", 0, 3))
sketch10.addConstraint(Sketcher.Constraint("Parallel", 2, 5))
sketch10.addConstraint(Sketcher.Constraint("Parallel", 3, 6))
sketch10.addConstraint(Sketcher.Constraint("Parallel", 5, 8))
sketch10.addConstraint(Sketcher.Constraint("Parallel", 6, 9))
sketch10.addConstraint(Sketcher.Constraint("Parallel", 8, 11))
sketch10.addConstraint(Sketcher.Constraint("Horizontal", 2, 2, 5, 2))
sketch10.addConstraint(Sketcher.Constraint("Horizontal", 8, 2, 11, 2))
sketch10.addConstraint(Sketcher.Constraint("Vertical", 1, 2, 3, 2))
sketch10.addConstraint(Sketcher.Constraint("Vertical", 0, 2, 4, 2))
sketch10.addConstraint(Sketcher.Constraint("Vertical", 4, 2, 6, 2))
sketch10.addConstraint(Sketcher.Constraint("Vertical", 3, 2, 7, 2))
sketch10.addConstraint(Sketcher.Constraint("Vertical", 2, 2, 8, 2))
sketch10.addConstraint(Sketcher.Constraint("Vertical", 7, 2, 9, 2))
sketch10.addConstraint(Sketcher.Constraint("Angle", 0, Q("60 deg")))
sketch10.addConstraint(Sketcher.Constraint("DistanceY", -1, 1, 2, 2, Q("0.8 in")))
sketch10.addConstraint(Sketcher.Constraint("DistanceY", -1, 1, 8, 2, Q("0.2 in")))
sketch10.addConstraint(Sketcher.Constraint("DistanceY", -1, 1, 3, 2, Q("0.6875 in")))
sketch10.addConstraint(Sketcher.Constraint("DistanceX", 1, 1, 1, 2, Q("3.299557 mm")))
sketch10.addConstraint(Sketcher.Constraint("DistanceX", -1, 1, 0, 2, Q("89.790222 mm")))
pocket8 = body.newObject("PartDesign::Pocket", "Pocket007")
pocket8.Profile = sketch10
pocket8.Type = "ThroughAll"

sketch11 = body.newObject("Sketcher::SketchObject", "Sketch010")
sketch11.AttachmentSupport = (doc.getObject("XZ_Plane"), [""])
sketch11.MapMode = "FlatFace"
sketch11.AttachmentOffset = App.Placement(App.Vector(0, 0, -1.5 * 25.4), App.Rotation())
sketch11.addGeometry(Part.LineSegment(App.Vector(114.3, 99.06, 0), App.Vector(114.3, 91.44, 0)), False)
sketch11.addGeometry(Part.LineSegment(App.Vector(114.3, 91.44, 0), App.Vector(37.321173, 91.44, 0)), False)
sketch11.addGeometry(Part.LineSegment(App.Vector(37.321173, 91.44, 0), App.Vector(37.321173, 6.276223, 0)), False)
sketch11.addGeometry(Part.LineSegment(App.Vector(37.321173, 6.276223, 0), App.Vector(-7.62, 6.276223, 0)), False)
sketch11.addGeometry(Part.LineSegment(App.Vector(-7.62, 6.276223, 0), App.Vector(-7.62, 99.06, 0)), False)
sketch11.addGeometry(Part.LineSegment(App.Vector(-7.62, 99.06, 0), App.Vector(114.3, 99.06, 0)), False)
sketch11.addConstraint(Sketcher.Constraint("Coincident", 0, 2, 1, 1))
sketch11.addConstraint(Sketcher.Constraint("Coincident", 1, 2, 2, 1))
sketch11.addConstraint(Sketcher.Constraint("Coincident", 2, 2, 3, 1))
sketch11.addConstraint(Sketcher.Constraint("Coincident", 3, 2, 4, 1))
sketch11.addConstraint(Sketcher.Constraint("Coincident", 4, 2, 5, 1))
sketch11.addConstraint(Sketcher.Constraint("Coincident", 5, 2, 0, 1))
sketch11.addConstraint(Sketcher.Constraint("Vertical", 0))
sketch11.addConstraint(Sketcher.Constraint("Horizontal", 1))
sketch11.addConstraint(Sketcher.Constraint("Vertical", 2))
sketch11.addConstraint(Sketcher.Constraint("Horizontal", 3))
sketch11.addConstraint(Sketcher.Constraint("Vertical", 4))
sketch11.addConstraint(Sketcher.Constraint("Horizontal", 5))
sketch11.addConstraint(Sketcher.Constraint("DistanceX", 5, 1, 5, 2, Q("4.8 in")))
sketch11.addConstraint(Sketcher.Constraint("DistanceY", 0, 2, 0, 1, Q("0.3 in")))
sketch11.addConstraint(Sketcher.Constraint("DistanceX", -1, 1, 0, 2, Q("4.5 in")))
sketch11.addConstraint(Sketcher.Constraint("DistanceY", -1, 1, 0, 2, Q("3.6 in")))
sketch11.addConstraint(Sketcher.Constraint("DistanceX", 1, 2, 1, 1, Q("76.978827 mm")))
sketch11.addConstraint(Sketcher.Constraint("DistanceY", 2, 2, 2, 1, Q("85.163777 mm")))
pocket9 = body.newObject("PartDesign::Pocket", "Pocket008")
pocket9.Profile = sketch11
pocket9.Type = "ThroughAll"
pocket9.Reversed = True

sketch12 = body.newObject("Sketcher::SketchObject", "Sketch011")
sketch12.AttachmentSupport = (doc.getObject("XY_Plane"), [""])
sketch12.MapMode = "FlatFace"
sketch12.AttachmentOffset = App.Placement(App.Vector(0, 0, 3.6 * 25.4), App.Rotation())
sketch12.addGeometry(Part.Circle(App.Vector(91.226718, 20.521889, 0), App.Vector(0, 0, 1), 4.468005), False)
sketch12.addGeometry(Part.Circle(App.Vector(91.757738, 5.016114, 0), App.Vector(0, 0, 1), 4.110213), False)
sketch12.addConstraint(Sketcher.Constraint("Diameter", 0, Q("8.93601 mm")))
sketch12.addConstraint(Sketcher.Constraint("Diameter", 1, Q("8.220426 mm")))
sketch12.addConstraint(Sketcher.Constraint("DistanceX", -1, 1, 0, 3, Q("91.226718 mm")))
sketch12.addConstraint(Sketcher.Constraint("DistanceY", -1, 1, 0, 3, Q("20.521889 mm")))
sketch12.addConstraint(Sketcher.Constraint("DistanceX", 0, 3, 1, 3, Q("0.53102 mm")))
sketch12.addConstraint(Sketcher.Constraint("DistanceY", -1, 1, 1, 3, Q("5.016114 mm")))
pad3 = body.newObject("PartDesign::Pad", "Pad002")
pad3.Profile = sketch12
pad3.Length = Q("0.1 in")
pad3.Reversed = True

sketch13 = body.newObject("Sketcher::SketchObject", "Sketch012")
sketch13.AttachmentSupport = (doc.getObject("XY_Plane"), [""])
sketch13.MapMode = "FlatFace"
sketch13.AttachmentOffset = App.Placement(App.Vector(0, 0, 3.6 * 25.4), App.Rotation())
sketch13.addGeometry(Part.Circle(App.Vector(91.44, 20.32, 0), App.Vector(0, 0, 1), 1.651), False)
sketch13.addGeometry(Part.Circle(App.Vector(91.44, 5.08, 0), App.Vector(0, 0, 1), 1.651), False)
sketch13.addConstraint(Sketcher.Constraint("Equal", 0, 1))
sketch13.addConstraint(Sketcher.Constraint("Vertical", 0, 3, 1, 3))
sketch13.addConstraint(Sketcher.Constraint("Diameter", 0, Q("0.13 in")))
sketch13.addConstraint(Sketcher.Constraint("DistanceX", -1, 1, 0, 3, Q("3.6 in")))
sketch13.addConstraint(Sketcher.Constraint("DistanceY", -1, 1, 0, 3, Q("0.8 in")))
sketch13.addConstraint(Sketcher.Constraint("DistanceY", -1, 1, 1, 3, Q("0.2 in")))
pocket10 = body.newObject("PartDesign::Pocket", "Pocket009")
pocket10.Profile = sketch13
pocket10.Length = Q("0.1 in")

doc.recompute()
